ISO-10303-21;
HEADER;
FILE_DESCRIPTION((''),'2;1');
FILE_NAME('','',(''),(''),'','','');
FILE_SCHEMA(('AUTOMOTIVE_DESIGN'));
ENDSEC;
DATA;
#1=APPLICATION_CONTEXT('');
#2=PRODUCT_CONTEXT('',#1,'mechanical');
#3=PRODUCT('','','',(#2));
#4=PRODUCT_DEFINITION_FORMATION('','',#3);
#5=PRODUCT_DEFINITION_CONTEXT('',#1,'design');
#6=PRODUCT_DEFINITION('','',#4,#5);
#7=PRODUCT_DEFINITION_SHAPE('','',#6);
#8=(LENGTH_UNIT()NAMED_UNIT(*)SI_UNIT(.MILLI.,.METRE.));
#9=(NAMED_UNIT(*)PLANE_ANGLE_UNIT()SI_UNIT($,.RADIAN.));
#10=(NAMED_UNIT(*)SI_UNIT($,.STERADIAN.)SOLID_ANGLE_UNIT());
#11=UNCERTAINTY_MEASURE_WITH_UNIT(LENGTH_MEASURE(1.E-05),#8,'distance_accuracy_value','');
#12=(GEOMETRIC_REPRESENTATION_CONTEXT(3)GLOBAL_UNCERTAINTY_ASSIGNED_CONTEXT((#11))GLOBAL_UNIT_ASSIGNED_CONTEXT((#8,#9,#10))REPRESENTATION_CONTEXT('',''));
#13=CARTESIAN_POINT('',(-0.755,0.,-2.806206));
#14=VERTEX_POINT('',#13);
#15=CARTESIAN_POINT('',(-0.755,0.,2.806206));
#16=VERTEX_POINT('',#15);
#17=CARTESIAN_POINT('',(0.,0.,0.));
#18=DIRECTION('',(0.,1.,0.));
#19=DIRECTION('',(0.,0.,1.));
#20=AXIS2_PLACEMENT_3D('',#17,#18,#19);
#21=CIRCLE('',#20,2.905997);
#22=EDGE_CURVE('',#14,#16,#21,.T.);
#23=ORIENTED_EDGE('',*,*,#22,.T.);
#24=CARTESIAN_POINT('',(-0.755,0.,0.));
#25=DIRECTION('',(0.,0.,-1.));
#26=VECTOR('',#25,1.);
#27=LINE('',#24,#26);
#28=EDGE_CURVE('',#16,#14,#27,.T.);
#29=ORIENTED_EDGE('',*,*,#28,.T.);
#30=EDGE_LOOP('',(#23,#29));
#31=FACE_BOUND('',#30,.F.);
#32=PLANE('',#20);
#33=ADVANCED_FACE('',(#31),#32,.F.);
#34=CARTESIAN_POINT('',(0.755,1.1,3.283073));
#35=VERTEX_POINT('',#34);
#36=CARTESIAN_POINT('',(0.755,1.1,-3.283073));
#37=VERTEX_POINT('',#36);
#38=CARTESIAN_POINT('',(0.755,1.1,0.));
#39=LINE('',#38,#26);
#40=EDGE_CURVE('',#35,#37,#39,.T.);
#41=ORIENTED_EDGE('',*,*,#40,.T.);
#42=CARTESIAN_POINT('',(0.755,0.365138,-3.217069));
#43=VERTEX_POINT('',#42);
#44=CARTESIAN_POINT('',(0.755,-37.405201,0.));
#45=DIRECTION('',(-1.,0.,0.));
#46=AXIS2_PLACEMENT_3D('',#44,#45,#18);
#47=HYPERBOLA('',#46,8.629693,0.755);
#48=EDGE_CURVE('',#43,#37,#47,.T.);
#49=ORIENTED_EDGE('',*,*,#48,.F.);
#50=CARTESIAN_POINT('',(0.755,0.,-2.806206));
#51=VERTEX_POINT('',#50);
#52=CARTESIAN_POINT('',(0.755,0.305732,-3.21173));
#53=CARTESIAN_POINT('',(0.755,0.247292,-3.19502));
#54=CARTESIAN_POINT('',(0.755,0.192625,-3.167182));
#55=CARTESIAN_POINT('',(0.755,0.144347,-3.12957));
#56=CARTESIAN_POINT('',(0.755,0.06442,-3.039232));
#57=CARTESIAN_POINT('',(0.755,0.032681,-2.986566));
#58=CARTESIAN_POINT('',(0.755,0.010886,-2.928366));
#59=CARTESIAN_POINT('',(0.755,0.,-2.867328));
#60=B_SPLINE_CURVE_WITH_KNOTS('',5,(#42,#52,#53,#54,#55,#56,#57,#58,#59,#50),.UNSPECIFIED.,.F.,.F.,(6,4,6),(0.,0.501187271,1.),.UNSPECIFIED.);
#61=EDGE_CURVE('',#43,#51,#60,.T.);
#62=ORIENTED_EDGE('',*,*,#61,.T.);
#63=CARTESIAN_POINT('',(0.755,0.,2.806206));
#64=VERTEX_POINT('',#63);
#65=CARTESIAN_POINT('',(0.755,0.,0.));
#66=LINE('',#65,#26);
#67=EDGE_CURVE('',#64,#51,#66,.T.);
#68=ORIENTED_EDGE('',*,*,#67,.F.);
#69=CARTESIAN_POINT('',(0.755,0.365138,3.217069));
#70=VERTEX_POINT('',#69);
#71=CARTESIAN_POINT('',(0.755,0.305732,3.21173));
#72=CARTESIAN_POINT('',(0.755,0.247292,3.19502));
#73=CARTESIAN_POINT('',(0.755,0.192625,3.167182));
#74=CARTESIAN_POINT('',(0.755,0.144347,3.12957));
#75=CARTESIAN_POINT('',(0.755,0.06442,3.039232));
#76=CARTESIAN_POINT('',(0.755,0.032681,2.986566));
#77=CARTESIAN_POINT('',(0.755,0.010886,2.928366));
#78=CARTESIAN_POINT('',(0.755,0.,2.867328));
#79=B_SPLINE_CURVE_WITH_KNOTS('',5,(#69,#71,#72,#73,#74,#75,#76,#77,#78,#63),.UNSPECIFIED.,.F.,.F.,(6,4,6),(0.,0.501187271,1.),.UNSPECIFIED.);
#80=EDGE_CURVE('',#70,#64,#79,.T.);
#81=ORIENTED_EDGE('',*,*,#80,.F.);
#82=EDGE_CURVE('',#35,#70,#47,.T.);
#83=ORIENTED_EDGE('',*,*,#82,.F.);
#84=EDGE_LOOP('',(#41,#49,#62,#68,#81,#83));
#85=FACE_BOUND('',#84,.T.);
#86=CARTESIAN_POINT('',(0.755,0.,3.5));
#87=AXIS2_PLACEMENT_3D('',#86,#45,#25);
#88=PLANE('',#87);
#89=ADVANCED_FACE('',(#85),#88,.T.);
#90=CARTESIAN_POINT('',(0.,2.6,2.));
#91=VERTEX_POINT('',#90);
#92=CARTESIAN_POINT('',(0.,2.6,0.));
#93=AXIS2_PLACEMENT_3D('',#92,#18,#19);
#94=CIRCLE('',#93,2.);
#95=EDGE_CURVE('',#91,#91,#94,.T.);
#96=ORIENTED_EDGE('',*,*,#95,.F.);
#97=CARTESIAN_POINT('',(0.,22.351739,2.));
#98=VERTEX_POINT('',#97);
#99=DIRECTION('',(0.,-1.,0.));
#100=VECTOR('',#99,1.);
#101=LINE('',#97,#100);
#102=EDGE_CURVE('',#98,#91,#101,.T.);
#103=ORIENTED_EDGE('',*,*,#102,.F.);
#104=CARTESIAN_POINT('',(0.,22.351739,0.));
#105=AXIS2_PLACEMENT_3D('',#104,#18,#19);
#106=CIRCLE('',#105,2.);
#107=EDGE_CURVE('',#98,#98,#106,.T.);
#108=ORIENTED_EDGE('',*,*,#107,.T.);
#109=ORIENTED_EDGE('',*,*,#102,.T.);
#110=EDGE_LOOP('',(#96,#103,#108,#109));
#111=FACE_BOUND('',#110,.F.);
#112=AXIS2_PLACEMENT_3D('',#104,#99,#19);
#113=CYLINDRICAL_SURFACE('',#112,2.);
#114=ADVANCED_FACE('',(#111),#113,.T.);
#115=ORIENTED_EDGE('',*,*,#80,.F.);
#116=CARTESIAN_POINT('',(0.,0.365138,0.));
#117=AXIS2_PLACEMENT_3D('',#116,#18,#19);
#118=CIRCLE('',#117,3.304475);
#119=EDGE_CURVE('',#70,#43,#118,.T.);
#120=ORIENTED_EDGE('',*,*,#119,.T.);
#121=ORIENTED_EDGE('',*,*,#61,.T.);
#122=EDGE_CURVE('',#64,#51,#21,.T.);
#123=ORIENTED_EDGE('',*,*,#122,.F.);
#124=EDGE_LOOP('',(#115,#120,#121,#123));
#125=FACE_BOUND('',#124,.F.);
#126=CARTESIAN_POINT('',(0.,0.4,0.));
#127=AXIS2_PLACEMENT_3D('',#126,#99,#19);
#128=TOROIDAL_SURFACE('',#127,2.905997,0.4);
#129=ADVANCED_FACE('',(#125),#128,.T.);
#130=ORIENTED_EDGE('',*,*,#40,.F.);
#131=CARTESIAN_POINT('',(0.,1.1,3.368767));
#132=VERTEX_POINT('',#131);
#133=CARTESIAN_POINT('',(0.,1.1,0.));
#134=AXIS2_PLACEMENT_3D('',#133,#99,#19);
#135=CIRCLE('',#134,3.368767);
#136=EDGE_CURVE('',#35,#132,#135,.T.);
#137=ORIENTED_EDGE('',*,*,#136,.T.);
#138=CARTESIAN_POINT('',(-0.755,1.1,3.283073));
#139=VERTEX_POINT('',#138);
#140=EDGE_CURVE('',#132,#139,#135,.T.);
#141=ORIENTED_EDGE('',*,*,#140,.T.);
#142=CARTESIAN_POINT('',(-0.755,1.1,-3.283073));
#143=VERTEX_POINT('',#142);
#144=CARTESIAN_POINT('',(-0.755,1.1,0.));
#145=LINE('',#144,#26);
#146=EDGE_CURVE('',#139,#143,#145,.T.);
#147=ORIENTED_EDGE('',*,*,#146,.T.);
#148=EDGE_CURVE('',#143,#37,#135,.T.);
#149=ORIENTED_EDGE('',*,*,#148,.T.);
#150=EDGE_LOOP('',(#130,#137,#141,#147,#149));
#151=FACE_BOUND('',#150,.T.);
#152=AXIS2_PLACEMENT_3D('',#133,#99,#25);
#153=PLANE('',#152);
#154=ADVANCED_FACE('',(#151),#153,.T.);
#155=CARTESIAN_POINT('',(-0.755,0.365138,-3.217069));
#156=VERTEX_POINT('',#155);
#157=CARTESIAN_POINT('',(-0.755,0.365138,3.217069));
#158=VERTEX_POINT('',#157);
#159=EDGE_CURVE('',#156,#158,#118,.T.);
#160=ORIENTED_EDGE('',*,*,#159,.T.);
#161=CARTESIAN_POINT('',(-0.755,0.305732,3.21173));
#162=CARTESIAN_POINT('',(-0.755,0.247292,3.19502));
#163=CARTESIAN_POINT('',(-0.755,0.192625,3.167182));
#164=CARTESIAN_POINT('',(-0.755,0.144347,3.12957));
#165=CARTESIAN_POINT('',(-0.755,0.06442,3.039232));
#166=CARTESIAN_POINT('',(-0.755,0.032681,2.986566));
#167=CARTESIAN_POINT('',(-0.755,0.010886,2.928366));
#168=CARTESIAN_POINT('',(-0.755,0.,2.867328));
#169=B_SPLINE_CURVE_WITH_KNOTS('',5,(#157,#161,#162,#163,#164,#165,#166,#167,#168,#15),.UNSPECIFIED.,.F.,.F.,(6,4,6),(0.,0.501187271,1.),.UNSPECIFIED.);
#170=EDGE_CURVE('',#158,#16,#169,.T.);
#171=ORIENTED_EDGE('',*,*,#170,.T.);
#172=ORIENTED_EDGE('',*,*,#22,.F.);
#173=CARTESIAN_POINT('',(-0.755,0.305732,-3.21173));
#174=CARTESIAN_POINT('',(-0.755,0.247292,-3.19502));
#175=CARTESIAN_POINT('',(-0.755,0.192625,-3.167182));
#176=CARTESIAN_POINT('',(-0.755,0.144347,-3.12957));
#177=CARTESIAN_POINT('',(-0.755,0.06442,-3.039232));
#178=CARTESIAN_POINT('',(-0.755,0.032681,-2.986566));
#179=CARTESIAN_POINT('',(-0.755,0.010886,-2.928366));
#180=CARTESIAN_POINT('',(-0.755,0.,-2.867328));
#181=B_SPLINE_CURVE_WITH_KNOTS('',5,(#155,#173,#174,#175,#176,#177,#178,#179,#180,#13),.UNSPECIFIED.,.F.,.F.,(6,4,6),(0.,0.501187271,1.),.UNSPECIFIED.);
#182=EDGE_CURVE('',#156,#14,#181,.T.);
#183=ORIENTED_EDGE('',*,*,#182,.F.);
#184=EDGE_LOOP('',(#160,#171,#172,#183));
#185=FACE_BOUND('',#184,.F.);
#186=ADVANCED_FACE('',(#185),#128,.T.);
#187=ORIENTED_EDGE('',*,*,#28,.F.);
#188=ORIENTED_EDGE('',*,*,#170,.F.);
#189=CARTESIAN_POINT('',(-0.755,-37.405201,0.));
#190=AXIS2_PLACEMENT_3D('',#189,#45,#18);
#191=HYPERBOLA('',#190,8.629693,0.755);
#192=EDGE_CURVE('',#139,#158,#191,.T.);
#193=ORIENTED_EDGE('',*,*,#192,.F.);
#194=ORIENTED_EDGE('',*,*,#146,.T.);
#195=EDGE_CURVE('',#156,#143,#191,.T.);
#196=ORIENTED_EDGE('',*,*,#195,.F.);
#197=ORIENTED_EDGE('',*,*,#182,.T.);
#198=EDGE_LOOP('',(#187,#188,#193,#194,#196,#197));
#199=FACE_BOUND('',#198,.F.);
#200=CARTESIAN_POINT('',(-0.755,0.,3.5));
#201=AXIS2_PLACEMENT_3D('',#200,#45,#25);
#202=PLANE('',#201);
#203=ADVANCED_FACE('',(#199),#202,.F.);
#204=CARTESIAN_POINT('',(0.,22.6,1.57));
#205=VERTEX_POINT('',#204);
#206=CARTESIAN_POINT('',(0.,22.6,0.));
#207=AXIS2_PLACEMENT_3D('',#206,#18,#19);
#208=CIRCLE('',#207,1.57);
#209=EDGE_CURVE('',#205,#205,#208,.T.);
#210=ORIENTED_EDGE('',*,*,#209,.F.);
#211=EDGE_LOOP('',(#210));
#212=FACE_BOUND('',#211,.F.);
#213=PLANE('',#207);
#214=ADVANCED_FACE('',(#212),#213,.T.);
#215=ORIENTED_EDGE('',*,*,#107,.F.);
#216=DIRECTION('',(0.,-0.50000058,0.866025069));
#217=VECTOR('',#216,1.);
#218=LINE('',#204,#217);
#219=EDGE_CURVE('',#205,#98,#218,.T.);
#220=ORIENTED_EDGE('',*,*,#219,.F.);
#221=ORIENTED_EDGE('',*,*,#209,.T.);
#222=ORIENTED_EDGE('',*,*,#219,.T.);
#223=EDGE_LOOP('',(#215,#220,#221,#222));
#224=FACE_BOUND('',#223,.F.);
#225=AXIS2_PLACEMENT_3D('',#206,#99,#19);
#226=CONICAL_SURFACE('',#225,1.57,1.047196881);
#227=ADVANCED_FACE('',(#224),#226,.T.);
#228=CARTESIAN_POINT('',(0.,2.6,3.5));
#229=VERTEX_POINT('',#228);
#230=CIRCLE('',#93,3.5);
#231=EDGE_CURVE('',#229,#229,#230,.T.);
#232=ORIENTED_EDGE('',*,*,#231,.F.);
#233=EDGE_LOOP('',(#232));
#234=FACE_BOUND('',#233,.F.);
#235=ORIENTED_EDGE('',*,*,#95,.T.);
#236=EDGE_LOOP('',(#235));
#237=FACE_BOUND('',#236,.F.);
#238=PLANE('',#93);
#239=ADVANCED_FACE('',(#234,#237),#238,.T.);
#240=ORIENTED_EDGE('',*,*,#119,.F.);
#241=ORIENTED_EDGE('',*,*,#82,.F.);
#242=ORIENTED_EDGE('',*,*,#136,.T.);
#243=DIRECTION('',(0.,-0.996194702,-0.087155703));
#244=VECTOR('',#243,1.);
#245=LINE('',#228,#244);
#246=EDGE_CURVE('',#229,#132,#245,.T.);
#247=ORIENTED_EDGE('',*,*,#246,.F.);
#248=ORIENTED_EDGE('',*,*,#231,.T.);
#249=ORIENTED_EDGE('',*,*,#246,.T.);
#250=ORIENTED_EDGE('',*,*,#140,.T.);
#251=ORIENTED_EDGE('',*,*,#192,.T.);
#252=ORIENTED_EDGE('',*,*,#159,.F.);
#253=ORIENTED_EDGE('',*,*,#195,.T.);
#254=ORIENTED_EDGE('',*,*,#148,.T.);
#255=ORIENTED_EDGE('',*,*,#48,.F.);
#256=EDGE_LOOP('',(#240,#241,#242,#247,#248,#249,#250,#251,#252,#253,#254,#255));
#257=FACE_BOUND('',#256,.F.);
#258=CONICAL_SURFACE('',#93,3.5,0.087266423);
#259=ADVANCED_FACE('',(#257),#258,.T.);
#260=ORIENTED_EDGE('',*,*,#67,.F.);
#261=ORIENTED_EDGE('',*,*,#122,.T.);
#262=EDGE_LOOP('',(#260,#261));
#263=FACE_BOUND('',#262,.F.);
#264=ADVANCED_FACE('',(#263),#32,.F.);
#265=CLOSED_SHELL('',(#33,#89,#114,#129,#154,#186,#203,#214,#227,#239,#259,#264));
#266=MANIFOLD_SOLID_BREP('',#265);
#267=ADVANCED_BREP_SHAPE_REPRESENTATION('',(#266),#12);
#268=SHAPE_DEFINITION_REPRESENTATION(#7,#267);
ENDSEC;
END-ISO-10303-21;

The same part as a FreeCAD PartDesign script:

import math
import FreeCAD as App
import Part
import Sketcher
Q = App.Units.Quantity


def add_polygon(sketch, points):
    """Adds a closed chain of lines whose ends are joined by coincident constraints."""
    first, n = sketch.GeometryCount, len(points)
    for a, b in zip(points, points[1:] + points[:1]):
        sketch.addGeometry(Part.LineSegment(App.Vector(*a, 0), App.Vector(*b, 0)), False)
    for i in range(n):
        sketch.addConstraint(Sketcher.Constraint("Coincident", first + i, 2, first + (i + 1) % n, 1))

doc = App.newDocument("Part")
params = doc.addObject("Spreadsheet::Sheet", "Params")
for row, (alias, value) in enumerate([
    ("sketch1_radius", "0.4 mm"),
    ("sketch1_width", "22.6 mm"),
    ("sketch1_height", "1.5 mm"),
    ("sketch1_height2", "1.57 mm"),
    ("revolution_angle", "360 deg"),
    ("sketch2_height", "7 mm"),
    ("sketch2_width", "1.51 mm"),
    ("pocket1_length", "1.1 mm"),
], start=1):
    params.set(f"A{row}", alias)
    params.set(f"B{row}", "=" + value)
    params.setAlias(f"B{row}", alias)

body = doc.addObject("PartDesign::Body", "Body")

sketch1 = body.newObject("Sketcher::SketchObject", "Sketch")
sketch1.AttachmentSupport = (doc.getObject("YZ_Plane"), [""])
sketch1.MapMode = "FlatFace"
sketch1.addGeometry([
    Part.LineSegment(App.Vector(0, 2.905997, 0), App.Vector(0, 0, 0)),
    Part.LineSegment(App.Vector(0, 0, 0), App.Vector(22.6, 0, 0)),
    Part.LineSegment(App.Vector(22.6, 0, 0), App.Vector(22.6, 1.57, 0)),
    Part.LineSegment(App.Vector(22.6, 1.57, 0), App.Vector(22.351739, 2, 0)),
    Part.LineSegment(App.Vector(22.351739, 2, 0), App.Vector(2.6, 2, 0)),
    Part.LineSegment(App.Vector(2.6, 2, 0), App.Vector(2.6, 3.5, 0)),
    Part.LineSegment(App.Vector(2.6, 3.5, 0), App.Vector(0.365138, 3.304475, 0)),
    Part.ArcOfCircle(Part.Circle(App.Vector(0.4, 2.905997, 0), App.Vector(0, 0, 1), 0.4), math.radians(94.999984), math.radians(179.999987)),
], False)
sketch1.addConstraint([
    Sketcher.Constraint("Coincident", 0, 2, 1, 1),
    Sketcher.Constraint("Coincident", 1, 2, 2, 1),
    Sketcher.Constraint("Coincident", 2, 2, 3, 1),
    Sketcher.Constraint("Coincident", 3, 2, 4, 1),
    Sketcher.Constraint("Coincident", 4, 2, 5, 1),
    Sketcher.Constraint("Coincident", 5, 2, 6, 1),
    Sketcher.Constraint("Tangent", 6, 2, 7, 1),
    Sketcher.Constraint("Tangent", 7, 2, 0, 1),
    Sketcher.Constraint("Vertical", 0),
    Sketcher.Constraint("Horizontal", 1),
    Sketcher.Constraint("Vertical", 2),
    Sketcher.Constraint("Horizontal", 4),
    Sketcher.Constraint("Vertical", 5),
    Sketcher.Constraint("Coincident", 0, 2, -1, 1),
    Sketcher.Constraint("Radius", 7, 0.4),
    Sketcher.Constraint("Angle", 6, Q("-175.000002 deg")),
    Sketcher.Constraint("DistanceX", 1, 1, 1, 2, 22.6),
    Sketcher.Constraint("DistanceY", 5, 1, 5, 2, 1.5),
    Sketcher.Constraint("DistanceY", -1, 1, 3, 2, 2.0),
    Sketcher.Constraint("DistanceX", 4, 2, 2, 2, 20.0),
    Sketcher.Constraint("DistanceY", 2, 1, 2, 2, 1.57),
    Sketcher.Constraint("DistanceX", 4, 2, 4, 1, 19.751739),
])
sketch1.setExpression("Constraints[14]", "Params.sketch1_radius")
sketch1.setExpression("Constraints[16]", "Params.sketch1_width")
sketch1.setExpression("Constraints[17]", "Params.sketch1_height")
sketch1.setExpression("Constraints[20]", "Params.sketch1_height2")
revolution = body.newObject("PartDesign::Revolution", "Revolution")
revolution.Profile = sketch1
revolution.ReferenceAxis = (sketch1, ["H_Axis"])
revolution.setExpression("Angle", "Params.revolution_angle")

sketch2 = body.newObject("Sketcher::SketchObject", "Sketch001")
sketch2.AttachmentSupport = (doc.getObject("XZ_Plane"), [""])
sketch2.MapMode = "FlatFace"
add_polygon(sketch2, [(0.755, 3.5), (-0.755, 3.5), (-0.755, -3.5), (0.755, -3.5)])
sketch2.addConstraint([
    Sketcher.Constraint("Horizontal", 0),
    Sketcher.Constraint("Vertical", 1),
    Sketcher.Constraint("Horizontal", 2),
    Sketcher.Constraint("Vertical", 3),
    Sketcher.Constraint("Symmetric", 0, 2, 2, 2, -1, 1),
    Sketcher.Constraint("DistanceY", 1, 2, 1, 1, 7.0),
    Sketcher.Constraint("DistanceX", 0, 2, 0, 1, 1.51),
])
sketch2.setExpression("Constraints[9]", "Params.sketch2_height")
sketch2.setExpression("Constraints[10]", "Params.sketch2_width")
pocket1 = body.newObject("PartDesign::Pocket", "Pocket")
pocket1.Profile = sketch2
pocket1.setExpression("Length", "Params.pocket1_length")

doc.recompute()
